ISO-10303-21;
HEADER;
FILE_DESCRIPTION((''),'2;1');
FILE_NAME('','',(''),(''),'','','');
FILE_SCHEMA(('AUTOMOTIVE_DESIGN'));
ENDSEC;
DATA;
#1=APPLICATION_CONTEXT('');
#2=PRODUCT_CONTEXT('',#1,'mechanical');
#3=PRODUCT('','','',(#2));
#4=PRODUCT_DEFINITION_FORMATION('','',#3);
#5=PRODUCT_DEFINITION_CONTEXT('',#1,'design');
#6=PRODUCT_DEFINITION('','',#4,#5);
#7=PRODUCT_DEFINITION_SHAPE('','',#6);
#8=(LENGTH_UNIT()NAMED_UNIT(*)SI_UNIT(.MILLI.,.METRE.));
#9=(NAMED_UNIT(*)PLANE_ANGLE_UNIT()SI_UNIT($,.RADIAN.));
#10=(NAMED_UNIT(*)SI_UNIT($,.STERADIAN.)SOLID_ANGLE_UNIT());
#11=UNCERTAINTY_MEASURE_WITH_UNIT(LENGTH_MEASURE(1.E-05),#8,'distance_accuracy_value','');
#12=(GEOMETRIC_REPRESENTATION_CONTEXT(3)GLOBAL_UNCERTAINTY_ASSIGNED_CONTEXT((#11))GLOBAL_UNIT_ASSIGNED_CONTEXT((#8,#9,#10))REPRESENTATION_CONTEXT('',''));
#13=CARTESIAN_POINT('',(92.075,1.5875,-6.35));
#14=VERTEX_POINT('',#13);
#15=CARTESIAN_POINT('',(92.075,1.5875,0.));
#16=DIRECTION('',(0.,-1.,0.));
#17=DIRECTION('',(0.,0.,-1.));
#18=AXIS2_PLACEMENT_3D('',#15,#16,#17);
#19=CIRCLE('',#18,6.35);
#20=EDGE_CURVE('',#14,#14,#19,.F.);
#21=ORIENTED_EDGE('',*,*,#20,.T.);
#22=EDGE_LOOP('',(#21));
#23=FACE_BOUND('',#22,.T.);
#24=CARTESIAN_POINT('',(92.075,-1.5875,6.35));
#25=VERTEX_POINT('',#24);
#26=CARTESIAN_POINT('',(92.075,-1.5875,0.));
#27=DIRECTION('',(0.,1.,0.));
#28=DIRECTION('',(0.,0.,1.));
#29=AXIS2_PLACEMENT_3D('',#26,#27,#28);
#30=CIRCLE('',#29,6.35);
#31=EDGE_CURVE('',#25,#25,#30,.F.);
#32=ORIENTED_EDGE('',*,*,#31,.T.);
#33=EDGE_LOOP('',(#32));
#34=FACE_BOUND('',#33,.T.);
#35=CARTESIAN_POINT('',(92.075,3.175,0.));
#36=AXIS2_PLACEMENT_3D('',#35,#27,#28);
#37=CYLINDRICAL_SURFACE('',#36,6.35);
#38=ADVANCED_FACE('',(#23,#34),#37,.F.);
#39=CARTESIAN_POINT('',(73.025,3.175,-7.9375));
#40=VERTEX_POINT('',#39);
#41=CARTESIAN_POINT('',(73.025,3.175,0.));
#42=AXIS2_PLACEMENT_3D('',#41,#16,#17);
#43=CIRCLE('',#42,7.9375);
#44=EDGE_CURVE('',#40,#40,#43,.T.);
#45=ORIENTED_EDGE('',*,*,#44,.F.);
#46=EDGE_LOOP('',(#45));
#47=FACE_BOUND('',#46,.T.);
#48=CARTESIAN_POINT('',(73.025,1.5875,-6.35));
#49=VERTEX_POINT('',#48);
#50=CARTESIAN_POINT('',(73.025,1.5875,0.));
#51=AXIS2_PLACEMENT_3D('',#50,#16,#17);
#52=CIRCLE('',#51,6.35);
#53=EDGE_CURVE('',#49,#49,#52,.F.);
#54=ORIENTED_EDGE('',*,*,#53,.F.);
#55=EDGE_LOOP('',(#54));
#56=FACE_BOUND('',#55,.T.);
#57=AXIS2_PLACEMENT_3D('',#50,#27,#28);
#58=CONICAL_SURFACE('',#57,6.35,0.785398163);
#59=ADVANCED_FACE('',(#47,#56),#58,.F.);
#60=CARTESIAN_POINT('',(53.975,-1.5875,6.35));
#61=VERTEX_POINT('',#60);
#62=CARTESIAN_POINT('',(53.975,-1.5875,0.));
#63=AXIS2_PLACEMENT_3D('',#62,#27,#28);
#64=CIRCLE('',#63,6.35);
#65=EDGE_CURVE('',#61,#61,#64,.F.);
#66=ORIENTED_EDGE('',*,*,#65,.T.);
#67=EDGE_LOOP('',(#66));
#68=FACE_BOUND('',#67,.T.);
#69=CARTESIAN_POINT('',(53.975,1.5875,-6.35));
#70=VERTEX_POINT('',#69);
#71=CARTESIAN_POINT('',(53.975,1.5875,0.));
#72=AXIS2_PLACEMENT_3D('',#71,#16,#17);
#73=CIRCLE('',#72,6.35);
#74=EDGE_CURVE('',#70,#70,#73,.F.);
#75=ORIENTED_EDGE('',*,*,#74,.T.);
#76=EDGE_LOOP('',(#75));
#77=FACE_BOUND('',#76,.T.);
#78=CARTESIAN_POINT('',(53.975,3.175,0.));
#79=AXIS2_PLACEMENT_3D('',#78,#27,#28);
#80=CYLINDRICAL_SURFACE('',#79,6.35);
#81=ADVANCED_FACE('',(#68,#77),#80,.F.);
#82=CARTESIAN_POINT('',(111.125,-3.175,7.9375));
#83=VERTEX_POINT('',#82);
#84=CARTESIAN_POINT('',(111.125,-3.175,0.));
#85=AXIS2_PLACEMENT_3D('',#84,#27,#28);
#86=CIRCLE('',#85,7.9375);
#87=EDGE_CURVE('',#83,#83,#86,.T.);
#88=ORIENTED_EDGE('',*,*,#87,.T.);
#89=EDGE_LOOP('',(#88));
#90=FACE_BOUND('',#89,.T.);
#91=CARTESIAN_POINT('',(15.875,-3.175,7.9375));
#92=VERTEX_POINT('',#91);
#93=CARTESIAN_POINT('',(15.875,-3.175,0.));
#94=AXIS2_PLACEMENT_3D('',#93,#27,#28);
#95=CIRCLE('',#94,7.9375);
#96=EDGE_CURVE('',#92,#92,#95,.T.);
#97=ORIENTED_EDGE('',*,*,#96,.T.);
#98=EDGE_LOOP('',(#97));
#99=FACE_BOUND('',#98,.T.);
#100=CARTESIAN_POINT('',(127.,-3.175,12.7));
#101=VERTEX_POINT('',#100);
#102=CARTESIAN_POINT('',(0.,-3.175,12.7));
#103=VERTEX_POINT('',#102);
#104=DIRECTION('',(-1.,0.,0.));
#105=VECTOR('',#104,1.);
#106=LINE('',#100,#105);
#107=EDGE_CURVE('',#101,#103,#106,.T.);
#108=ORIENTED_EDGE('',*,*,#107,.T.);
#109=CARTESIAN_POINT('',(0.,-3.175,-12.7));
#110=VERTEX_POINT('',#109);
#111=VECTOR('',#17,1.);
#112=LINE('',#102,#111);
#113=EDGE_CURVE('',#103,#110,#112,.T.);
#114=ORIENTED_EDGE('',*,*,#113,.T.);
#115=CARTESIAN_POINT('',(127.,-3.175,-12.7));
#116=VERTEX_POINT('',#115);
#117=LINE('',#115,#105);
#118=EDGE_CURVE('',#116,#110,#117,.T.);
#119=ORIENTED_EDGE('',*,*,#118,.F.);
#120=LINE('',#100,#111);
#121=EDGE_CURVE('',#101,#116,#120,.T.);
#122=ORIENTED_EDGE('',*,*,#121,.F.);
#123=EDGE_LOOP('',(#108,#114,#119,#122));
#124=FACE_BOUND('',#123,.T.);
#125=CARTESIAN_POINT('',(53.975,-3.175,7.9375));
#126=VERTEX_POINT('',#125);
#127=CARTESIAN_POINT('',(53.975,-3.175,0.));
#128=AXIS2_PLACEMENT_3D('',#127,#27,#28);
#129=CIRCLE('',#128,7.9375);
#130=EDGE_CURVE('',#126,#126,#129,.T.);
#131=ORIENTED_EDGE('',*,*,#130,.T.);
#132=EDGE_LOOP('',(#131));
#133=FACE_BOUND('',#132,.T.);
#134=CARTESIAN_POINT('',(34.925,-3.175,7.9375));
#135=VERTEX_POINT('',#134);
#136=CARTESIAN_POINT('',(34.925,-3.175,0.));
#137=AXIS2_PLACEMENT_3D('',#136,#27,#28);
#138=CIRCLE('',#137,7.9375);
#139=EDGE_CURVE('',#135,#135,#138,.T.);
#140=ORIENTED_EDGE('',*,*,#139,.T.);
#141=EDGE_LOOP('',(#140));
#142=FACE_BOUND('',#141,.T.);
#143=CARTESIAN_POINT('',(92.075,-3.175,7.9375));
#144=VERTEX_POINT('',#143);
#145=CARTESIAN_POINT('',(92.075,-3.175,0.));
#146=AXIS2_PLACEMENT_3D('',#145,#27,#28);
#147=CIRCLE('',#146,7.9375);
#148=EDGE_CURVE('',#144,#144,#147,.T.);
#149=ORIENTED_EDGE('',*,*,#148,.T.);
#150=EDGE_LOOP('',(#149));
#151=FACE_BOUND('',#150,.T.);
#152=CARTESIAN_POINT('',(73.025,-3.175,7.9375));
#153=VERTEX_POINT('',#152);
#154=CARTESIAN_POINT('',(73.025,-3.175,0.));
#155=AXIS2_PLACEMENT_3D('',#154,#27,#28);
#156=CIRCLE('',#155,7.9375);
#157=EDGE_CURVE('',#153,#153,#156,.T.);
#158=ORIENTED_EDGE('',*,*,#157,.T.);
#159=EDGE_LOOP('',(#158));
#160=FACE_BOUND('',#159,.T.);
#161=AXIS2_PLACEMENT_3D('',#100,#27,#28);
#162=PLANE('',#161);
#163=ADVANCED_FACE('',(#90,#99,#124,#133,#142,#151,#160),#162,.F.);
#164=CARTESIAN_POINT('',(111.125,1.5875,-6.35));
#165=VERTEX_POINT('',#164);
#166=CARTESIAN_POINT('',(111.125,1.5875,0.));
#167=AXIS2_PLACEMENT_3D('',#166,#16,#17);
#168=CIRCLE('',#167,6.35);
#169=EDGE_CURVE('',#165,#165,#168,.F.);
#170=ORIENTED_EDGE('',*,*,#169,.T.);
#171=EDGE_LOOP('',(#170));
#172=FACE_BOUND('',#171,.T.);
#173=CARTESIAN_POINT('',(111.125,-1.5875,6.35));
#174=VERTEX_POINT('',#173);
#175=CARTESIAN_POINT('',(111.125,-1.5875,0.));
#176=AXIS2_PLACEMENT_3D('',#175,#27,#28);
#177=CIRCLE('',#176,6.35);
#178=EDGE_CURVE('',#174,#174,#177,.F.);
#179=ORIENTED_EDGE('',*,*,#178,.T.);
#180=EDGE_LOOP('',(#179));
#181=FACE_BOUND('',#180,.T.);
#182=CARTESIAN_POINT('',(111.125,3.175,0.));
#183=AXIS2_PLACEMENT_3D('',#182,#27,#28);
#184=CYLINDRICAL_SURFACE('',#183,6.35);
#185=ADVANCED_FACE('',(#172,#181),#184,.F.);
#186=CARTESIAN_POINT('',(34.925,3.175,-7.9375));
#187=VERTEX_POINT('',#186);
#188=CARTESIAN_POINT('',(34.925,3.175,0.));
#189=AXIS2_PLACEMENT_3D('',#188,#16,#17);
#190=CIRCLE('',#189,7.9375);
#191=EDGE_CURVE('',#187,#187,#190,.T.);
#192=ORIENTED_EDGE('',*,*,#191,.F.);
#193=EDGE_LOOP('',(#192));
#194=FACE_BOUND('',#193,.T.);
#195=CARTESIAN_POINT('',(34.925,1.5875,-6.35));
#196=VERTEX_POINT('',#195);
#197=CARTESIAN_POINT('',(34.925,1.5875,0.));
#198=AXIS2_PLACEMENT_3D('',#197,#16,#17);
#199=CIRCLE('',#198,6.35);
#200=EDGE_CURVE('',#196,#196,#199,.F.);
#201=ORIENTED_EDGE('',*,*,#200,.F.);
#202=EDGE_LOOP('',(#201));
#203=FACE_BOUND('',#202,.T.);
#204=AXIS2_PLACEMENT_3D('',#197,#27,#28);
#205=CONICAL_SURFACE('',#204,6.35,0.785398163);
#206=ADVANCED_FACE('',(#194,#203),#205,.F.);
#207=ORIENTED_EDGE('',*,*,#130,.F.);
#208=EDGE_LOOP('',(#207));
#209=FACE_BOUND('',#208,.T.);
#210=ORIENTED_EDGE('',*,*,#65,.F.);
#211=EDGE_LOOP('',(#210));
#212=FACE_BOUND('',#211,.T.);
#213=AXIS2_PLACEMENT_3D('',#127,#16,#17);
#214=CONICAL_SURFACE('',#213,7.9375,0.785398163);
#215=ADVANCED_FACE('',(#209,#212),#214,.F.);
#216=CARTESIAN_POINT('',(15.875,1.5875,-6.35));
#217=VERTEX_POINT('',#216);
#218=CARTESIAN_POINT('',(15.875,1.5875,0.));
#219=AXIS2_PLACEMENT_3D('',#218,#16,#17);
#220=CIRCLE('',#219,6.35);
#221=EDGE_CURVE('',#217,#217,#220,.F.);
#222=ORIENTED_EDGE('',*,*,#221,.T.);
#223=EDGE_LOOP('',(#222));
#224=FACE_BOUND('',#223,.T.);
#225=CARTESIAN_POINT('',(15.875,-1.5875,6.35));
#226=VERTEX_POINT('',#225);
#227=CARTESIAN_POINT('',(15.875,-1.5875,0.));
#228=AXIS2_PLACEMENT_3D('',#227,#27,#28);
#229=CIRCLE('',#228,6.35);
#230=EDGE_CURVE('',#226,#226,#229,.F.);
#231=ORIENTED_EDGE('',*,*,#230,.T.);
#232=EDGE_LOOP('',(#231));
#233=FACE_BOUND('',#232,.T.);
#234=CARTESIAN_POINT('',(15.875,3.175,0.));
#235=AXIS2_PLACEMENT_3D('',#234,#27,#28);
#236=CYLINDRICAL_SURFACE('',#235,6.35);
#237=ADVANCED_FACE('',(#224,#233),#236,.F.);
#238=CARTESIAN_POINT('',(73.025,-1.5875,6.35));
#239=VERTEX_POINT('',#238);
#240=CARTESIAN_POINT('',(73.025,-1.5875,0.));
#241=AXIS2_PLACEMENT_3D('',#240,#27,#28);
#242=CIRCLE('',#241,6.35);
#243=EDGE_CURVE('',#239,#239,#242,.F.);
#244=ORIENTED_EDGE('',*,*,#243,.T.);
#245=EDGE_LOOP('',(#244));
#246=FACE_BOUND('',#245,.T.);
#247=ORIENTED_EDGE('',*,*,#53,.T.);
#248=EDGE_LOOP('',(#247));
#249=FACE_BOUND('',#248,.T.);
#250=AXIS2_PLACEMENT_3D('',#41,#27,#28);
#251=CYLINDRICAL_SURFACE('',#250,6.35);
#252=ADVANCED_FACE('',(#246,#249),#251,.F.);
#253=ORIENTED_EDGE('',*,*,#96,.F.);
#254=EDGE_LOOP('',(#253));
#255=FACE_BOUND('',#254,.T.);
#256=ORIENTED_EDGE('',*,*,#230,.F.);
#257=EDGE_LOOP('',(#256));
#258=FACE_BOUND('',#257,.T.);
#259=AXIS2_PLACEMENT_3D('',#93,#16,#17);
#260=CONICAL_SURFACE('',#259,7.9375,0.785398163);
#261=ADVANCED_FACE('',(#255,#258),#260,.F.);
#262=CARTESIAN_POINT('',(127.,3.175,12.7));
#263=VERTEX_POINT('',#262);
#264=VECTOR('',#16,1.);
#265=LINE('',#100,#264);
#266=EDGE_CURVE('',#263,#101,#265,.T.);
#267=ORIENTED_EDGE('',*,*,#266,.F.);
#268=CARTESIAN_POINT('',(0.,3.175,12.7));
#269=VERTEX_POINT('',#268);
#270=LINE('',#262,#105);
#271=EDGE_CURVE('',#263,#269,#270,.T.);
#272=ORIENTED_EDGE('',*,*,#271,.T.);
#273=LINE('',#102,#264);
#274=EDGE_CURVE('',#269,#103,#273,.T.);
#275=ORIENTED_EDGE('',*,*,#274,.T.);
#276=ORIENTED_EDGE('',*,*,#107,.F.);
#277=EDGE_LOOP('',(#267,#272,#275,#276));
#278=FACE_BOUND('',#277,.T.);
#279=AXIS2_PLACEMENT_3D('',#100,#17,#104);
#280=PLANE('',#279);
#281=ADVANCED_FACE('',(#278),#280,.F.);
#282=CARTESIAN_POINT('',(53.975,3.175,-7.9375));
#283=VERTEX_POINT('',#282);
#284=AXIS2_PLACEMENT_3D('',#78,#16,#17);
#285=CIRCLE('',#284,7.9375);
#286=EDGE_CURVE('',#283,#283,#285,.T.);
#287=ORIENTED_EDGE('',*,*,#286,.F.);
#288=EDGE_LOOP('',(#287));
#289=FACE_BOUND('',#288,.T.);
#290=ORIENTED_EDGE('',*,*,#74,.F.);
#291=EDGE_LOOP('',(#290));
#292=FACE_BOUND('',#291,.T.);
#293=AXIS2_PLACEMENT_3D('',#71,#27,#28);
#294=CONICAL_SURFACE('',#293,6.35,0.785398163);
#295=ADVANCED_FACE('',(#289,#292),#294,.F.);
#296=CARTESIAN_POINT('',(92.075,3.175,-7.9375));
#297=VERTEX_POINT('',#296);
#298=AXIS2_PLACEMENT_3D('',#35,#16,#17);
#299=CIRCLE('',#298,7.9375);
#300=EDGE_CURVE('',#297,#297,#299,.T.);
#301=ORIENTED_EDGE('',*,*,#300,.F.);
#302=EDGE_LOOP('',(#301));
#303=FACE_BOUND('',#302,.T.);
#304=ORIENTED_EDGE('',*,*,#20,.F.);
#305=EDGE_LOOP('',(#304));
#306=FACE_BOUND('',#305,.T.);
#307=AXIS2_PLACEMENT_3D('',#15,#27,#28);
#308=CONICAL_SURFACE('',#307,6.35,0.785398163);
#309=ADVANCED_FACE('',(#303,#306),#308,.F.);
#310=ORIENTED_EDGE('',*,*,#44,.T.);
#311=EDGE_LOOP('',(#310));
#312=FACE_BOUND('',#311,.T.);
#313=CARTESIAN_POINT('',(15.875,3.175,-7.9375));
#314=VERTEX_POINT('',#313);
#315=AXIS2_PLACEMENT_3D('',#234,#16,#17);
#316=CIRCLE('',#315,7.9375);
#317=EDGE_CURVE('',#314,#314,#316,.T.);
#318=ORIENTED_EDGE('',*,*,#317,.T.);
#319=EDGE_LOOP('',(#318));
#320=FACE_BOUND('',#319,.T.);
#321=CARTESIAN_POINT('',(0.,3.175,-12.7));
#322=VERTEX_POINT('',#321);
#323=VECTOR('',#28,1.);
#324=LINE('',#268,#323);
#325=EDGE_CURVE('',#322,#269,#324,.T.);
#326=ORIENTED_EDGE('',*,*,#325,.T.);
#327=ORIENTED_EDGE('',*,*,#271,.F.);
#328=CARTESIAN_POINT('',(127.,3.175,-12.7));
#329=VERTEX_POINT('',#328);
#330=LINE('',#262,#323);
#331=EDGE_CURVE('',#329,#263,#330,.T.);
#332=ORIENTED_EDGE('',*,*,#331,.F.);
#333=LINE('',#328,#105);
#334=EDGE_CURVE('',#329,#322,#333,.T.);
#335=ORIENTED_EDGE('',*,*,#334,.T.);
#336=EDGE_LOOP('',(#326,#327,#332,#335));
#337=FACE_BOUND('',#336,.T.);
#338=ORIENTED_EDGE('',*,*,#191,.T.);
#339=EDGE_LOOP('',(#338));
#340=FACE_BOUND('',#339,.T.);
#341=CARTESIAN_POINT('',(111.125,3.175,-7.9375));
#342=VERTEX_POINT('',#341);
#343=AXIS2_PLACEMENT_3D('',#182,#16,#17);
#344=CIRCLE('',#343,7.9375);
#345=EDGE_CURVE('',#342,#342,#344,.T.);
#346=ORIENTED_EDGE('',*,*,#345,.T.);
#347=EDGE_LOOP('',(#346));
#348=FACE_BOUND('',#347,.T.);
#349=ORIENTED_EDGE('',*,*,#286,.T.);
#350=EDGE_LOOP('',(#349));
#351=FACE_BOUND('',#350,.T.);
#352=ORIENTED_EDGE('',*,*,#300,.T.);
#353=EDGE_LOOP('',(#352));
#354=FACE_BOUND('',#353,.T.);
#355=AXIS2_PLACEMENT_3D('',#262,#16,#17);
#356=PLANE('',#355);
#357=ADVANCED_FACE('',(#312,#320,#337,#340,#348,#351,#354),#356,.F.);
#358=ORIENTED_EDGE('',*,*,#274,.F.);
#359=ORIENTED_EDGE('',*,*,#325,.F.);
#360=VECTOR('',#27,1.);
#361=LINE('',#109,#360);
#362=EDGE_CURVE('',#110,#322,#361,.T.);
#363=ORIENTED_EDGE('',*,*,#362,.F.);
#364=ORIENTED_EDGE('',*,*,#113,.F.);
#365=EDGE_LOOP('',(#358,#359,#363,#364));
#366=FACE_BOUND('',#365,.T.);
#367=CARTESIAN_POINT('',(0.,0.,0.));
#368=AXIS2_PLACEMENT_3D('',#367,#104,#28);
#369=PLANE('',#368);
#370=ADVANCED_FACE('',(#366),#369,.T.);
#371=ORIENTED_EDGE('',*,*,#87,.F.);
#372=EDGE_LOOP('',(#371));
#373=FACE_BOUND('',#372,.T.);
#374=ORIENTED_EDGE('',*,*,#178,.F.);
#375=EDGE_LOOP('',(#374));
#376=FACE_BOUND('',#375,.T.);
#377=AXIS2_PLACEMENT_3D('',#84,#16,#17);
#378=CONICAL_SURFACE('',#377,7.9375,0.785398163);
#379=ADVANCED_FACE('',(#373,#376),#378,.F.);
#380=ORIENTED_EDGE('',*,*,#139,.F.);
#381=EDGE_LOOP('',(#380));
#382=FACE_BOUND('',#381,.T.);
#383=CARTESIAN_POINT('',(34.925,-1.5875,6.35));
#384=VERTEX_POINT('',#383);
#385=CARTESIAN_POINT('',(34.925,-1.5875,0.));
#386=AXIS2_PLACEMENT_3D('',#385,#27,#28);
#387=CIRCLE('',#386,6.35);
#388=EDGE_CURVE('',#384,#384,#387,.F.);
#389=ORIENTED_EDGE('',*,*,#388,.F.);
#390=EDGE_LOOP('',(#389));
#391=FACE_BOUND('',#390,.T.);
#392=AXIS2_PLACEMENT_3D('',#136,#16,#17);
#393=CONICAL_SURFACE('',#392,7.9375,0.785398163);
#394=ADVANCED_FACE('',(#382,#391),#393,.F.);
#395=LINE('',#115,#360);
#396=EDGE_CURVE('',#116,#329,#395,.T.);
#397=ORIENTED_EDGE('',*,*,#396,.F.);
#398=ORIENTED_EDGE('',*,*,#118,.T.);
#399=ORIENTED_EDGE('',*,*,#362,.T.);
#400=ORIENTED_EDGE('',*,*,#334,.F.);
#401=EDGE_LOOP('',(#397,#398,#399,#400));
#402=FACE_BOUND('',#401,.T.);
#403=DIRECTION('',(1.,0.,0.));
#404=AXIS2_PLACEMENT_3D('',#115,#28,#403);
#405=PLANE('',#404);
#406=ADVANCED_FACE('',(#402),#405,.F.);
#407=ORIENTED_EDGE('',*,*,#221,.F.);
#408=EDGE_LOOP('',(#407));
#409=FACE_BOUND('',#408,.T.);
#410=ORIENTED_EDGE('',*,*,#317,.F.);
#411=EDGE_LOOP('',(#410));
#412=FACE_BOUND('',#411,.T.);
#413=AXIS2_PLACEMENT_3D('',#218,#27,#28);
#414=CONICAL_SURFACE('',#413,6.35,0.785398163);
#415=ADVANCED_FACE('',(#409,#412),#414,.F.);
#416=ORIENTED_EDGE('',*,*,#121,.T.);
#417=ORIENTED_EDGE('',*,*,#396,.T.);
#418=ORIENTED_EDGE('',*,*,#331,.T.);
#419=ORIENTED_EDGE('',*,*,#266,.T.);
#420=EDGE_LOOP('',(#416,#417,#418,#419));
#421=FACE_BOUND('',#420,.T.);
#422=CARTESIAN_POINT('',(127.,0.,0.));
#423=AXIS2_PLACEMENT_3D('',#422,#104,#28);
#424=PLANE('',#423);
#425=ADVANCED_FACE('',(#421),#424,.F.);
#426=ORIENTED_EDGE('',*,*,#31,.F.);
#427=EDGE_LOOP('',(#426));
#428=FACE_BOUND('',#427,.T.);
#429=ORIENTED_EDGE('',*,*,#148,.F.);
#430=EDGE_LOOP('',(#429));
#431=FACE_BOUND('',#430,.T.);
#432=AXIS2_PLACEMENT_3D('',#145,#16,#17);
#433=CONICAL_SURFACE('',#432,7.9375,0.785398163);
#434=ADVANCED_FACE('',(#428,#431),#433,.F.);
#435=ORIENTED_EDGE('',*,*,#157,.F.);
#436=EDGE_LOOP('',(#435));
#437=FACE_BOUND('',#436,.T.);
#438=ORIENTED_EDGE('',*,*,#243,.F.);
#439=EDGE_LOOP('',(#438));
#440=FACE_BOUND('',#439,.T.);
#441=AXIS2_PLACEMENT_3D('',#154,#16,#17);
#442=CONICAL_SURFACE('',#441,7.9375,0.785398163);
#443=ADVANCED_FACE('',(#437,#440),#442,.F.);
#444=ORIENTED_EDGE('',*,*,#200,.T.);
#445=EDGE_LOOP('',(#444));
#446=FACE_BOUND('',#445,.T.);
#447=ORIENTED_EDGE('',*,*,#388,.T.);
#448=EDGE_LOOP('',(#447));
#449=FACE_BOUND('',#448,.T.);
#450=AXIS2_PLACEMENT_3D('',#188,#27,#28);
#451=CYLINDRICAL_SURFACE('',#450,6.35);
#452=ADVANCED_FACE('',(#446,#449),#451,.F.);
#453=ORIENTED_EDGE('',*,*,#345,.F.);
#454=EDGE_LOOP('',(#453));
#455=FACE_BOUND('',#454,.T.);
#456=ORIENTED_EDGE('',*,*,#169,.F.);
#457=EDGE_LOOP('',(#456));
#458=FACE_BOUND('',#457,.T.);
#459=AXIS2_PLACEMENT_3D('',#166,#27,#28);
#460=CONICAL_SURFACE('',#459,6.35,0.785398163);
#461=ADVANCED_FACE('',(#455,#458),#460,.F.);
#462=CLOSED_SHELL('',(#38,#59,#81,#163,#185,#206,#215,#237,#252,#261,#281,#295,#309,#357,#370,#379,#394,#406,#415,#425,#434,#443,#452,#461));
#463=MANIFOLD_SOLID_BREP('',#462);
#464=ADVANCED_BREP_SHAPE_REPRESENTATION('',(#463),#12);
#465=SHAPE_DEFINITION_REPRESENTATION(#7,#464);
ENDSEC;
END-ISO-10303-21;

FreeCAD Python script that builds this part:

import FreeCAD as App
import Part
import Sketcher

V = App.Vector
Q = App.Units.Quantity


def edges_at(feature, points):
    """Names of the edges that pass closest to the given points."""
    edges = feature.Shape.Edges
    near = lambda p: min(range(len(edges)), key=lambda i: edges[i].distToShape(Part.Vertex(*p))[0])
    return sorted({f"Edge{near(p) + 1}" for p in points})

doc = App.newDocument("Part")
params = doc.addObject("Spreadsheet::Sheet", "Params")
for row, (alias, value) in enumerate([
    ("sketch1_height", "1 in"),
    ("sketch1_width", "0.25 in"),
    ("pad1_length", "5 in"),
    ("sketch2_diameter", "0.5 in"),
    ("hole_diameter", "0.5 in"),
    ("chamfer_size", "0.0625 in"),
    ("linearpattern_pitch", "0.75 in"),
    ("chamfer2_size", "0.0625 in"),
], start=1):
    params.set(f"A{row}", alias)
    params.set(f"B{row}", "=" + value)
    params.setAlias(f"B{row}", alias)

body = doc.addObject("PartDesign::Body", "Body")

sketch1 = body.newObject("Sketcher::SketchObject", "Sketch")
sketch1.AttachmentSupport = (doc.getObject("YZ_Plane"), [""])
sketch1.MapMode = "FlatFace"
sketch1.addGeometry(Part.LineSegment(V(3, 13, 0), V(-3, 13, 0)), False)
sketch1.addGeometry(Part.LineSegment(V(-3, 13, 0), V(-3, -13, 0)), False)
sketch1.addGeometry(Part.LineSegment(V(-3, -13, 0), V(3, -13, 0)), False)
sketch1.addGeometry(Part.LineSegment(V(3, -13, 0), V(3, 13, 0)), False)
sketch1.addConstraint(Sketcher.Constraint("Coincident", 0, 2, 1, 1))
sketch1.addConstraint(Sketcher.Constraint("Coincident", 1, 2, 2, 1))
sketch1.addConstraint(Sketcher.Constraint("Coincident", 2, 2, 3, 1))
sketch1.addConstraint(Sketcher.Constraint("Coincident", 3, 2, 0, 1))
sketch1.addConstraint(Sketcher.Constraint("Horizontal", 0))
sketch1.addConstraint(Sketcher.Constraint("Vertical", 1))
sketch1.addConstraint(Sketcher.Constraint("Horizontal", 2))
sketch1.addConstraint(Sketcher.Constraint("Vertical", 3))
sketch1.addConstraint(Sketcher.Constraint("Symmetric", 0, 2, 2, 2, -1, 1))
sketch1.addConstraint(Sketcher.Constraint("DistanceY", 1, 2, 1, 1, Q("1 in")))
sketch1.addConstraint(Sketcher.Constraint("DistanceX", 0, 2, 0, 1, Q("0.25 in")))
sketch1.setExpression("Constraints[9]", "Params.sketch1_height")
sketch1.setExpression("Constraints[10]", "Params.sketch1_width")
pad1 = body.newObject("PartDesign::Pad", "Pad")
pad1.Profile = sketch1
pad1.setExpression("Length", "Params.pad1_length")

sketch2 = body.newObject("Sketcher::SketchObject", "Sketch001")
sketch2.AttachmentSupport = (doc.getObject("XZ_Plane"), [""])
sketch2.MapMode = "FlatFace"
sketch2.AttachmentOffset = App.Placement(V(0, 0, -0.125 * 25.4), App.Rotation())
sketch2.addGeometry(Part.Circle(V(16, 0, 0), V(0, 0, 1), 6), False)
sketch2.addConstraint(Sketcher.Constraint("PointOnObject", 0, 3, -1))
sketch2.addConstraint(Sketcher.Constraint("Diameter", 0, Q("0.5 in")))
sketch2.addConstraint(Sketcher.Constraint("DistanceX", -1, 1, 0, 3, Q("0.625 in")))
sketch2.setExpression("Constraints[1]", "Params.sketch2_diameter")
doc.recompute()
hole = body.newObject("PartDesign::Hole", "Hole")
hole.Profile = sketch2
hole.ThreadType = "None"
hole.setExpression("Diameter", "Params.hole_diameter")
hole.DepthType = "ThroughAll"
hole.Reversed = True
doc.recompute()

chamfer = body.newObject("PartDesign::Chamfer", "Chamfer")
chamfer.Base = (hole, edges_at(hole, [(22.225, 3.175, 0), (22.225, -3.175, 0)]))
chamfer.setExpression("Size", "Params.chamfer_size")
doc.recompute()

linearpattern = body.newObject("PartDesign::LinearPattern", "LinearPattern")
linearpattern.Originals = [hole]
linearpattern.Direction = (doc.getObject("X_Axis"), [""])
linearpattern.Mode = "offset"
linearpattern.setExpression("Offset", "Params.linearpattern_pitch")
linearpattern.Occurrences = 6
body.Tip = linearpattern
doc.recompute()

chamfer2 = body.newObject("PartDesign::Chamfer", "Chamfer001")
chamfer2.Base = (linearpattern, edges_at(linearpattern, [
    (41.275, 3.175, 0),
    (41.275, -3.175, 0),
    (60.325, 3.175, 0),
    (60.325, -3.175, 0),
    (79.375, 3.175, 0),
    (79.375, -3.175, 0),
    (98.425, 3.175, 0),
    (98.425, -3.175, 0),
    (117.475, 3.175, 0),
    (117.475, -3.175, 0),
]))
chamfer2.setExpression("Size", "Params.chamfer2_size")

doc.recompute()
